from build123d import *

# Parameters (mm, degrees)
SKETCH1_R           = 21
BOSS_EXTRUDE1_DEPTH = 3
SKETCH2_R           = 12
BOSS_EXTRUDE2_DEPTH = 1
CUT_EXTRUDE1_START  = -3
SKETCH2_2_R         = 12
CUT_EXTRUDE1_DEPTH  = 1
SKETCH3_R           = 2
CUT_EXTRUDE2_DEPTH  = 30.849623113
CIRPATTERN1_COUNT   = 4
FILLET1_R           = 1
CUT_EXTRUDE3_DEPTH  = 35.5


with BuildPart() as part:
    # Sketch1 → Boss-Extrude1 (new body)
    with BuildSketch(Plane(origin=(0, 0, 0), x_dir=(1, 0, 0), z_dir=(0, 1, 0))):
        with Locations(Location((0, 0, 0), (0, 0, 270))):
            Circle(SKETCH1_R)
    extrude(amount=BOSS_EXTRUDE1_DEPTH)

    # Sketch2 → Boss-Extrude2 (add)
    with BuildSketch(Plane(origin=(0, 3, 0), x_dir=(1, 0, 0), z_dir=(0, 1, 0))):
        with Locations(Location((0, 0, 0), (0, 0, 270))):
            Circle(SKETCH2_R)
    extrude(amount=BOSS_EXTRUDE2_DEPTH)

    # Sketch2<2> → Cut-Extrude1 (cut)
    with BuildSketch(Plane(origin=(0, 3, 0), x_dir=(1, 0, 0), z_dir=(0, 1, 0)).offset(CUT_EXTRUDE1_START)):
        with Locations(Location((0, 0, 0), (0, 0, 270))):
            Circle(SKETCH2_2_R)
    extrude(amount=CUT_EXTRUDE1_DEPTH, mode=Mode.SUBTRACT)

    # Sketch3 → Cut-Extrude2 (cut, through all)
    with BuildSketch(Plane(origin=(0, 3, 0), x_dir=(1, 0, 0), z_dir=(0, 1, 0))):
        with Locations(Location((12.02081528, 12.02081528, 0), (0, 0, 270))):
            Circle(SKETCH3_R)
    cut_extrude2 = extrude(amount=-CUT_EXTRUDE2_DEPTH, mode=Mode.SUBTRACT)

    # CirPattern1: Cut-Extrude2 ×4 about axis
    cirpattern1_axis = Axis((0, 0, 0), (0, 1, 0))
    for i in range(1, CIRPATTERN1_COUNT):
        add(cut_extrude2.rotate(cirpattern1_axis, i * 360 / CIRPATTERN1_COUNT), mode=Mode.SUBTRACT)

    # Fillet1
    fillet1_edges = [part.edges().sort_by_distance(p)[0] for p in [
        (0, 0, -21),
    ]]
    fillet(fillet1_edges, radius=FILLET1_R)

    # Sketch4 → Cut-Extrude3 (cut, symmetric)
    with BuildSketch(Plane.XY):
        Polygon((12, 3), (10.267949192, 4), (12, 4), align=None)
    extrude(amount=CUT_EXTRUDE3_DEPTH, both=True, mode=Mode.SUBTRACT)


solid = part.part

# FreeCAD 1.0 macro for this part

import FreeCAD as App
import Part
import Sketcher
Q = App.Units.Quantity


def edges_at(feature, points):
    """Names of the edges that pass closest to the given points."""
    edges = feature.Shape.Edges
    near = lambda p: min(range(len(edges)), key=lambda i: edges[i].distToShape(Part.Vertex(*p))[0])
    return sorted({f"Edge{near(p) + 1}" for p in points})


def add_polygon(sketch, points):
    """Adds a closed chain of lines whose ends are joined by coincident constraints."""
    first, n = sketch.GeometryCount, len(points)
    for a, b in zip(points, points[1:] + points[:1]):
        sketch.addGeometry(Part.LineSegment(App.Vector(*a, 0), App.Vector(*b, 0)), False)
    for i in range(n):
        sketch.addConstraint(Sketcher.Constraint("Coincident", first + i, 2, first + (i + 1) % n, 1))

doc = App.newDocument("Part")
params = doc.addObject("Spreadsheet::Sheet", "Params")
for row, (alias, value) in enumerate([
    ("sketch1_diameter", "42 mm"),
    ("pad1_length", "3 mm"),
    ("sketch2_diameter", "24 mm"),
    ("pad2_length", "1 mm"),
    ("sketch3_diameter", "24 mm"),
    ("pocket1_length", "1 mm"),
    ("sketch4_diameter", "4 mm"),
    ("fillet_radius", "1 mm"),
    ("sketch5_height", "1 mm"),
    ("pocket3_length", "71 mm"),
], start=1):
    params.set(f"A{row}", alias)
    params.set(f"B{row}", "=" + value)
    params.setAlias(f"B{row}", alias)

body = doc.addObject("PartDesign::Body", "Body")

sketch1 = body.newObject("Sketcher::SketchObject", "Sketch")
sketch1.AttachmentSupport = (doc.getObject("XZ_Plane"), [""])
sketch1.MapMode = "FlatFace"
sketch1.addGeometry(Part.Circle(App.Vector(0, 0, 0), App.Vector(0, 0, 1), 21), False)
sketch1.addConstraint(Sketcher.Constraint("Coincident", 0, 3, -1, 1))
sketch1.addConstraint(Sketcher.Constraint("Diameter", 0, 42.0))
sketch1.setExpression("Constraints[1]", "Params.sketch1_diameter")
pad1 = body.newObject("PartDesign::Pad", "Pad")
pad1.Profile = sketch1
pad1.setExpression("Length", "Params.pad1_length")
pad1.Reversed = True

sketch2 = body.newObject("Sketcher::SketchObject", "Sketch001")
sketch2.AttachmentSupport = (doc.getObject("XZ_Plane"), [""])
sketch2.MapMode = "FlatFace"
sketch2.AttachmentOffset = App.Placement(App.Vector(0, 0, -3), App.Rotation())
sketch2.addGeometry(Part.Circle(App.Vector(0, 0, 0), App.Vector(0, 0, 1), 12), False)
sketch2.addConstraint(Sketcher.Constraint("Coincident", 0, 3, -1, 1))
sketch2.addConstraint(Sketcher.Constraint("Diameter", 0, 24.0))
sketch2.setExpression("Constraints[1]", "Params.sketch2_diameter")
pad2 = body.newObject("PartDesign::Pad", "Pad001")
pad2.Profile = sketch2
pad2.setExpression("Length", "Params.pad2_length")
pad2.Reversed = True

sketch3 = body.newObject("Sketcher::SketchObject", "Sketch002")
sketch3.AttachmentSupport = (doc.getObject("XZ_Plane"), [""])
sketch3.MapMode = "FlatFace"
sketch3.addGeometry(Part.Circle(App.Vector(0, 0, 0), App.Vector(0, 0, 1), 12), False)
sketch3.addConstraint(Sketcher.Constraint("Coincident", 0, 3, -1, 1))
sketch3.addConstraint(Sketcher.Constraint("Diameter", 0, 24.0))
sketch3.setExpression("Constraints[1]", "Params.sketch3_diameter")
pocket1 = body.newObject("PartDesign::Pocket", "Pocket")
pocket1.Profile = sketch3
pocket1.setExpression("Length", "Params.pocket1_length")

sketch4 = body.newObject("Sketcher::SketchObject", "Sketch003")
sketch4.AttachmentSupport = (doc.getObject("XZ_Plane"), [""])
sketch4.MapMode = "FlatFace"
sketch4.AttachmentOffset = App.Placement(App.Vector(0, 0, -3), App.Rotation())
sketch4.addGeometry(Part.Circle(App.Vector(12, -12, 0), App.Vector(0, 0, 1), 2), False)
sketch4.addConstraint(Sketcher.Constraint("Diameter", 0, 4.0))
sketch4.addConstraint(Sketcher.Constraint("DistanceX", -1, 1, 0, 3, 12.020815))
sketch4.addConstraint(Sketcher.Constraint("DistanceY", 0, 3, -1, 1, 12.020815))
sketch4.setExpression("Constraints[0]", "Params.sketch4_diameter")
pocket2 = body.newObject("PartDesign::Pocket", "Pocket001")
pocket2.Profile = sketch4
pocket2.Type = "ThroughAll"
pocket2.Reversed = True
doc.recompute()

polarpattern = body.newObject("PartDesign::PolarPattern", "PolarPattern")
polarpattern.Originals = [pocket2]
polarpattern.Axis = (doc.getObject("Y_Axis"), [""])
polarpattern.Angle = 360
polarpattern.Occurrences = 4
body.Tip = polarpattern
doc.recompute()

fillet = body.newObject("PartDesign::Fillet", "Fillet")
fillet.Base = (polarpattern, edges_at(polarpattern, [(0, 0, -21)]))
fillet.setExpression("Radius", "Params.fillet_radius")

sketch5 = body.newObject("Sketcher::SketchObject", "Sketch004")
sketch5.AttachmentSupport = (doc.getObject("XY_Plane"), [""])
sketch5.MapMode = "FlatFace"
add_polygon(sketch5, [(10.3, 4), (12, 3), (12, 4)])
sketch5.addConstraint(Sketcher.Constraint("Vertical", 1))
sketch5.addConstraint(Sketcher.Constraint("Horizontal", 2))
sketch5.addConstraint(Sketcher.Constraint("DistanceY", 1, 1, 1, 2, 1.0))
sketch5.addConstraint(Sketcher.Constraint("Angle", 0, Q("-30 deg")))
sketch5.addConstraint(Sketcher.Constraint("DistanceX", -1, 1, 0, 2, 12.0))
sketch5.addConstraint(Sketcher.Constraint("DistanceY", -1, 1, 0, 2, 3.0))
sketch5.setExpression("Constraints[5]", "Params.sketch5_height")
pocket3 = body.newObject("PartDesign::Pocket", "Pocket002")
pocket3.Profile = sketch5
pocket3.setExpression("Length", "Params.pocket3_length")
pocket3.Midplane = True

doc.recompute()
